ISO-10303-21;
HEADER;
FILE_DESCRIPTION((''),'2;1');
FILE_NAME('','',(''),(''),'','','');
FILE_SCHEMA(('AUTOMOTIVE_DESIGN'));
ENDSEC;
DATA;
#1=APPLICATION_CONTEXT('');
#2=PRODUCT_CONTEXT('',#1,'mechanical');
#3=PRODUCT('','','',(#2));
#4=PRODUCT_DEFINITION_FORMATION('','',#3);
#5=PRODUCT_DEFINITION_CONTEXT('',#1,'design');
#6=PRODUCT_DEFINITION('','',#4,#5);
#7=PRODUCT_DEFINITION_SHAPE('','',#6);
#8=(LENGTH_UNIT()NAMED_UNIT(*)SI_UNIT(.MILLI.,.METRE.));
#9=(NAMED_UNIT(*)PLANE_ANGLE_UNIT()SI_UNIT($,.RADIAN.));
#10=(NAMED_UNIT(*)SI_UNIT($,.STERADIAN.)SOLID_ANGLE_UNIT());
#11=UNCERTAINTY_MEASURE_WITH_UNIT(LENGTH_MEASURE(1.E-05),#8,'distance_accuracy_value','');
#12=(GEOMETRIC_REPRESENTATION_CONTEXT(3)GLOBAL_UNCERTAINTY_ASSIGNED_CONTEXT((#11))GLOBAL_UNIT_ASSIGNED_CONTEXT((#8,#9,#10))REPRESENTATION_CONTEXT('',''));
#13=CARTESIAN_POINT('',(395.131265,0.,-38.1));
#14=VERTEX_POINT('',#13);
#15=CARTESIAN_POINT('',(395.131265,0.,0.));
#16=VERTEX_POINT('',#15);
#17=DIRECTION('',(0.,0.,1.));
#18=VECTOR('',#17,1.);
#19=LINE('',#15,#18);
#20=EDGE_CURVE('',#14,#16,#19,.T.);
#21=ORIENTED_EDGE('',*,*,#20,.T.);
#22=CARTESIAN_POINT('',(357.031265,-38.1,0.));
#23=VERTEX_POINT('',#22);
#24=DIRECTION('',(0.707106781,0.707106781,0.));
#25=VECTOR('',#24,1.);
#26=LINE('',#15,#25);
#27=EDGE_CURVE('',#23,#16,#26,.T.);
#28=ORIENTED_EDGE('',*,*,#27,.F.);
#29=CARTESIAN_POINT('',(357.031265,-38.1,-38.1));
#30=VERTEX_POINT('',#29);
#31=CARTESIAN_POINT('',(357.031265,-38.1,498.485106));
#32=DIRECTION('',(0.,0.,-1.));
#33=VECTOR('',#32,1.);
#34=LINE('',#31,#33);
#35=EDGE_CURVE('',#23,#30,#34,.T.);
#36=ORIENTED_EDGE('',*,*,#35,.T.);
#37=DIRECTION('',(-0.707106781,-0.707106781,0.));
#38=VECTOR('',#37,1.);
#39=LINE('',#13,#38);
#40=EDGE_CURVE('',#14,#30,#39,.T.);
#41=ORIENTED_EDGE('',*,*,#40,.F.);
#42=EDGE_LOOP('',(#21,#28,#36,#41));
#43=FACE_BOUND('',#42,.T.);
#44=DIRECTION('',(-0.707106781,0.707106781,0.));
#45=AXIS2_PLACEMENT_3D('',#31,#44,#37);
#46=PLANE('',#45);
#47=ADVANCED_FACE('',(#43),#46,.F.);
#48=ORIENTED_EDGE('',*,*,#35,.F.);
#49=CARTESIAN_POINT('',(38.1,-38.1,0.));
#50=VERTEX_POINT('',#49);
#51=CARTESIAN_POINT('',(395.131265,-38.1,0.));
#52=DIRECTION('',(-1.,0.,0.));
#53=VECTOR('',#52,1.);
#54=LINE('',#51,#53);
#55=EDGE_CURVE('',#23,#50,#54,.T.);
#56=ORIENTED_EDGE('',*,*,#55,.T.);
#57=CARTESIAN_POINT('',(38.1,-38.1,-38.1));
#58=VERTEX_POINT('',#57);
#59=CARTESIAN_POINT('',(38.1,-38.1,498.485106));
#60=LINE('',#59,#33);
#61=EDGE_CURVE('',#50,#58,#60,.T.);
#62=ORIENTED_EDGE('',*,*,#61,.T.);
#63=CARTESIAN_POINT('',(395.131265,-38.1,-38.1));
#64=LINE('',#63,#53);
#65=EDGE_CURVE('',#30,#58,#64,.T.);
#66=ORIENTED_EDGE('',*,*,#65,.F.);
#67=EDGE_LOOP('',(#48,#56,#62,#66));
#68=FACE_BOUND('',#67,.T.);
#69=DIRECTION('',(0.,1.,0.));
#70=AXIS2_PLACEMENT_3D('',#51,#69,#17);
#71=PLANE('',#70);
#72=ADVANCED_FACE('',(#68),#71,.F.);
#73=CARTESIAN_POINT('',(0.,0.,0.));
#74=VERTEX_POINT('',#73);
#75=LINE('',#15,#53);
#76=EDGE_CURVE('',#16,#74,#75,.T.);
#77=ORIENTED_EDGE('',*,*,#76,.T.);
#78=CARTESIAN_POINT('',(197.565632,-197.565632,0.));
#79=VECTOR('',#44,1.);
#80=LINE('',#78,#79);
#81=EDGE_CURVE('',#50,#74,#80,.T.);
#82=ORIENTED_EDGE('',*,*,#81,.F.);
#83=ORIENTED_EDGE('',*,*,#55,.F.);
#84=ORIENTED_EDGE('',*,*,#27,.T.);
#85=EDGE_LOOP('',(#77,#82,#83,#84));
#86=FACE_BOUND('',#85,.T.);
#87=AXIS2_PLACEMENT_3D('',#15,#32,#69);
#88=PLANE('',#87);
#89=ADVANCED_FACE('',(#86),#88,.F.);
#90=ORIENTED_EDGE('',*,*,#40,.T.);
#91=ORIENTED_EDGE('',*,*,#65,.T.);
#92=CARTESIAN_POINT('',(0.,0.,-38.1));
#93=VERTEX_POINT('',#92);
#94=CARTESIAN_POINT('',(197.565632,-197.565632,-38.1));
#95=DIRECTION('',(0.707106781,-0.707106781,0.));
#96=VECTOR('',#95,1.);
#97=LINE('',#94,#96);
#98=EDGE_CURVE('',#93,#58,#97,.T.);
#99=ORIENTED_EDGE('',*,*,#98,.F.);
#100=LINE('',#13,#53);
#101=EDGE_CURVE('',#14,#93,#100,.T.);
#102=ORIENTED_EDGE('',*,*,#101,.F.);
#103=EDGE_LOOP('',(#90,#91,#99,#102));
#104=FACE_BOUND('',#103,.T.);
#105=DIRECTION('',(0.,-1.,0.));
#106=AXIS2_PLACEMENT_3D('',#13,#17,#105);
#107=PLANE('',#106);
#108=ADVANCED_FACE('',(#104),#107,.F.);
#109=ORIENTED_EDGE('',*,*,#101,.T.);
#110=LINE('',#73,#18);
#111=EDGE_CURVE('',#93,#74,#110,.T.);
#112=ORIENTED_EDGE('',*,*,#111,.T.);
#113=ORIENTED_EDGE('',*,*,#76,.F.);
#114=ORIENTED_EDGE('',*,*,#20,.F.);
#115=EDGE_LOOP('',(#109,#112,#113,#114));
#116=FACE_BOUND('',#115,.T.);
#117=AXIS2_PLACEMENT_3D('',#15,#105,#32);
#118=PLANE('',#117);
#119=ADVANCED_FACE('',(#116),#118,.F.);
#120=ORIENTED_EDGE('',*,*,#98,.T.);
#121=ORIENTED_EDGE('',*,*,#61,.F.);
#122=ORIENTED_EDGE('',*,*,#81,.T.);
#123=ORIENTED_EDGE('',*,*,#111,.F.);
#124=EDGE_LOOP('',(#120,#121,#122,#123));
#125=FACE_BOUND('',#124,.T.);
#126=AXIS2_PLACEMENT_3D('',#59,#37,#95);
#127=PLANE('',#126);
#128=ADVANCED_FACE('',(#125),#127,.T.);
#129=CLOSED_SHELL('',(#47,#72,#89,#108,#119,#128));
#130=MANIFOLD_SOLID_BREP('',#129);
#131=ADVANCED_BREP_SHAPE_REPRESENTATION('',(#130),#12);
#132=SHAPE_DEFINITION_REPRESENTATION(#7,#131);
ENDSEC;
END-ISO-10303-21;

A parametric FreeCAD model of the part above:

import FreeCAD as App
import Part
import Sketcher
from FreeCAD import Vector
Q = App.Units.Quantity

doc = App.newDocument("Part")
body = doc.addObject("PartDesign::Body", "Body")

sketch1 = body.newObject("Sketcher::SketchObject", "Sketch")
sketch1.AttachmentSupport = (doc.getObject("YZ_Plane"), [""])
sketch1.MapMode = "FlatFace"
sketch1.addGeometry([
    Part.LineSegment(Vector(0, 0, 0), Vector(-38, 0, 0)),
    Part.LineSegment(Vector(-38, 0, 0), Vector(-38, -38, 0)),
    Part.LineSegment(Vector(-38, -38, 0), Vector(0, -38, 0)),
    Part.LineSegment(Vector(0, -38, 0), Vector(0, 0, 0)),
], False)
sketch1.addConstraint([
    Sketcher.Constraint("Coincident", 0, 2, 1, 1),
    Sketcher.Constraint("Coincident", 1, 2, 2, 1),
    Sketcher.Constraint("Coincident", 2, 2, 3, 1),
    Sketcher.Constraint("Coincident", 3, 2, 0, 1),
    Sketcher.Constraint("Horizontal", 0),
    Sketcher.Constraint("Vertical", 1),
    Sketcher.Constraint("Horizontal", 2),
    Sketcher.Constraint("Vertical", 3),
    Sketcher.Constraint("Coincident", 3, 2, -1, 1),
    Sketcher.Constraint("Equal", 2, 1),
    Sketcher.Constraint("DistanceX", 0, 2, 0, 1, Q("1.5 in")),
])
pad1 = body.newObject("PartDesign::Pad", "Pad")
pad1.Profile = sketch1
pad1.Length = 395.131265

sketch2 = body.newObject("Sketcher::SketchObject", "Sketch001")
sketch2.AttachmentSupport = (doc.getObject("XY_Plane"), [""])
sketch2.MapMode = "FlatFace"
sketch2.addGeometry([
    Part.LineSegment(Vector(-804, -38, 0), Vector(38, -38, 0)),
    Part.LineSegment(Vector(38, -38, 0), Vector(-568, 568, 0)),
    Part.LineSegment(Vector(-568, 568, 0), Vector(-2067, 1150, 0)),
    Part.LineSegment(Vector(-2067, 1150, 0), Vector(-2303, 544, 0)),
    Part.LineSegment(Vector(-2303, 544, 0), Vector(-804, -38, 0)),
], False)
sketch2.addConstraint([
    Sketcher.Constraint("Coincident", 0, 2, 1, 1),
    Sketcher.Constraint("Coincident", 1, 2, 2, 1),
    Sketcher.Constraint("Coincident", 2, 2, 3, 1),
    Sketcher.Constraint("Coincident", 3, 2, 4, 1),
    Sketcher.Constraint("Coincident", 4, 2, 0, 1),
    Sketcher.Constraint("Horizontal", 0),
    Sketcher.Constraint("Perpendicular", 2, 3),
    Sketcher.Constraint("Perpendicular", 3, 4),
    Sketcher.Constraint("Equal", 2, 4),
    Sketcher.Constraint("Angle", 1, Q("135 deg")),
    Sketcher.Constraint("DistanceX", -1, 1, 0, 2, Q("1.5 in")),
    Sketcher.Constraint("DistanceY", 0, 2, -1, 1, Q("1.5 in")),
    Sketcher.Constraint("DistanceX", 0, 1, 0, 2, 842.027771),
    Sketcher.Constraint("Distance", 2, 1607.855541),
    Sketcher.Constraint("DistanceX", 1, 2, -1, 1, 568.462778),
])
pocket1 = body.newObject("PartDesign::Pocket", "Pocket")
pocket1.Profile = sketch2
pocket1.Type = "ThroughAll"
pocket1.Midplane = True

sketch3 = body.newObject("Sketcher::SketchObject", "Sketch002")
sketch3.AttachmentSupport = (doc.getObject("XY_Plane"), [""])
sketch3.MapMode = "FlatFace"
sketch3.addGeometry([
    Part.LineSegment(Vector(357, -38, 0), Vector(1199, -38, 0)),
    Part.LineSegment(Vector(1199, -38, 0), Vector(2698, 544, 0)),
    Part.LineSegment(Vector(2698, 544, 0), Vector(2462, 1150, 0)),
    Part.LineSegment(Vector(2462, 1150, 0), Vector(964, 568, 0)),
    Part.LineSegment(Vector(964, 568, 0), Vector(357, -38, 0)),
], False)
sketch3.addConstraint([
    Sketcher.Constraint("Coincident", 0, 2, 1, 1),
    Sketcher.Constraint("Coincident", 1, 2, 2, 1),
    Sketcher.Constraint("Coincident", 2, 2, 3, 1),
    Sketcher.Constraint("Coincident", 3, 2, 4, 1),
    Sketcher.Constraint("Coincident", 4, 2, 0, 1),
    Sketcher.Constraint("Horizontal", 0),
    Sketcher.Constraint("Perpendicular", 1, 2),
    Sketcher.Constraint("Perpendicular", 2, 3),
    Sketcher.Constraint("Equal", 1, 3),
    Sketcher.Constraint("Angle", 4, Q("-135 deg")),
    Sketcher.Constraint("DistanceY", 0, 2, -1, 1, Q("1.5 in")),
    Sketcher.Constraint("DistanceX", 0, 1, 0, 2, 842.027771),
    Sketcher.Constraint("Distance", 1, 1607.855541),
    Sketcher.Constraint("DistanceY", -1, 1, 1, 2, 543.758459),
    Sketcher.Constraint("DistanceX", -1, 1, 0, 2, 1199.059035),
])
pocket2 = body.newObject("PartDesign::Pocket", "Pocket001")
pocket2.Profile = sketch3
pocket2.Type = "ThroughAll"
pocket2.Midplane = True

doc.recompute()
